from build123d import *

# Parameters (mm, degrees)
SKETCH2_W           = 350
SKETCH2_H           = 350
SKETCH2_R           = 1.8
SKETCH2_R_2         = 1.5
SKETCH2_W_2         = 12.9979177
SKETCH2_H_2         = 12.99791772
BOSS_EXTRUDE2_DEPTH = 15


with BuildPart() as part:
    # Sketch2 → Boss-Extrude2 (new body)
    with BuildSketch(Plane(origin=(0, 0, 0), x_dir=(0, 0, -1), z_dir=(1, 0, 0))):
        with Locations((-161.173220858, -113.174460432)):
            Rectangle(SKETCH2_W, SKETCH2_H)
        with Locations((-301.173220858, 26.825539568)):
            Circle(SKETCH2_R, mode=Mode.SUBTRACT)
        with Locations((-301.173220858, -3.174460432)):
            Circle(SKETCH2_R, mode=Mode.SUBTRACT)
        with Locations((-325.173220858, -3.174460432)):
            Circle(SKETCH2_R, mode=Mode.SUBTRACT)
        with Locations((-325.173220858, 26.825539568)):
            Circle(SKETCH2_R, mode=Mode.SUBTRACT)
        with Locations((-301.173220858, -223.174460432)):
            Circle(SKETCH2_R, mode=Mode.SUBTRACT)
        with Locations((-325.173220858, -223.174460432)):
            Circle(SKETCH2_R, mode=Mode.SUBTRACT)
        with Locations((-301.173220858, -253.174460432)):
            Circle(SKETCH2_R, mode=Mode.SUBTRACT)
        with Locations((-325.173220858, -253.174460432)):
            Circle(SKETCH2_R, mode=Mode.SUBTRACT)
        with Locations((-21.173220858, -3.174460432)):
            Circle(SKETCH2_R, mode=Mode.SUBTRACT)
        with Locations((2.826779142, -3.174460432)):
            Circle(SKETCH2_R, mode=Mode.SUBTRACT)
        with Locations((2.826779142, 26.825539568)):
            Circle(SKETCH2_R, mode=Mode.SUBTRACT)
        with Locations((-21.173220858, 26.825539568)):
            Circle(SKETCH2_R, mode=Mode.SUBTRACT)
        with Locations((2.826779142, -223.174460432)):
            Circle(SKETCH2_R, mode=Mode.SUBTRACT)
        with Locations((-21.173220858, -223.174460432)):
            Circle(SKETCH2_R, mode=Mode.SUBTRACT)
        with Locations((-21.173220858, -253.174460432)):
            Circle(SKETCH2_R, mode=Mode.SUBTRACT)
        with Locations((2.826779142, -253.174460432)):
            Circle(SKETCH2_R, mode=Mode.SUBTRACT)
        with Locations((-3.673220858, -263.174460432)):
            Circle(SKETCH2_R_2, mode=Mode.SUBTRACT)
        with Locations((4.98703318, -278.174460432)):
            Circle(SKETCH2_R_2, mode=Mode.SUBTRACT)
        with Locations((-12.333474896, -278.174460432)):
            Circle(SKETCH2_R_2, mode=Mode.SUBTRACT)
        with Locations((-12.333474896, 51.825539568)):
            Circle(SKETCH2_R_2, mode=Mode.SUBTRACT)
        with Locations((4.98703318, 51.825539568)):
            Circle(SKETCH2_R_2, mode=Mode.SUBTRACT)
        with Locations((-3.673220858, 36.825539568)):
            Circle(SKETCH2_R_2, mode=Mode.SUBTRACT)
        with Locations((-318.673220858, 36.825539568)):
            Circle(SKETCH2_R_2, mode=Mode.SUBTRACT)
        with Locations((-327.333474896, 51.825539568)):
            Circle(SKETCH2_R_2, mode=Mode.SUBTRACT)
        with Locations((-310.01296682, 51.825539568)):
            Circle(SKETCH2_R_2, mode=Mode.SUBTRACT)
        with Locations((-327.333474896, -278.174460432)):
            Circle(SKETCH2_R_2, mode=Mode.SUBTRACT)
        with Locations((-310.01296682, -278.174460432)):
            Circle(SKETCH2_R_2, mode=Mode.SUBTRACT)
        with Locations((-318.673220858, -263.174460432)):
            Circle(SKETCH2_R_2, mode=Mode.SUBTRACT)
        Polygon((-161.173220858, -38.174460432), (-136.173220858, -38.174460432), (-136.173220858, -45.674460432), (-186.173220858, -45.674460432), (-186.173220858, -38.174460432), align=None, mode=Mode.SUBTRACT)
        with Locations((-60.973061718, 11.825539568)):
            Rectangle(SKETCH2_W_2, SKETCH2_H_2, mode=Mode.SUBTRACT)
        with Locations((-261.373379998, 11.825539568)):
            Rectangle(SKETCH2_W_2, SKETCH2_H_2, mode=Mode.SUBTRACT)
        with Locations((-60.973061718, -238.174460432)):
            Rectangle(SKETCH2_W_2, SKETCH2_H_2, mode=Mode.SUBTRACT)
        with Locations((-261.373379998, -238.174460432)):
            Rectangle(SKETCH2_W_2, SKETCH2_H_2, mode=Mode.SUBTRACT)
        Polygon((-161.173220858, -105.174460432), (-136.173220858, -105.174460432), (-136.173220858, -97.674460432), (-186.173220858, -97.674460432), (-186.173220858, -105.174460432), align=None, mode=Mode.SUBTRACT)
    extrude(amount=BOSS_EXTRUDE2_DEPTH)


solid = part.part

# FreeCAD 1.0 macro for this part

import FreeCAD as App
import Part
import Sketcher
from FreeCAD import Vector


def add_polygon(sketch, points):
    """Adds a closed chain of lines whose ends are joined by coincident constraints."""
    first, n = sketch.GeometryCount, len(points)
    for a, b in zip(points, points[1:] + points[:1]):
        sketch.addGeometry(Part.LineSegment(App.Vector(*a, 0), App.Vector(*b, 0)), False)
    for i in range(n):
        sketch.addConstraint(Sketcher.Constraint("Coincident", first + i, 2, first + (i + 1) % n, 1))

doc = App.newDocument("Part")
body = doc.addObject("PartDesign::Body", "Body")

# Sketch on YZ plane
sketch1 = body.newObject("Sketcher::SketchObject", "Sketch")
sketch1.AttachmentSupport = (doc.getObject("YZ_Plane"), [""])
sketch1.MapMode = "FlatFace"
add_polygon(sketch1, [(61.82554, 336.173221), (-288.17446, 336.173221), (-288.17446, -13.826779), (61.82554, -13.826779)])  # lines 0-3
sketch1.addGeometry(Part.Circle(Vector(-278.17446, 327.333475, 0), Vector(0, 0, 1), 1.5), False)  # 4
sketch1.addGeometry(Part.Circle(Vector(-278.17446, 310.012967, 0), Vector(0, 0, 1), 1.5), False)  # 5
sketch1.addGeometry(Part.Circle(Vector(-263.17446, 318.673221, 0), Vector(0, 0, 1), 1.5), False)  # 6
sketch1.addGeometry(Part.Circle(Vector(-253.17446, 325.173221, 0), Vector(0, 0, 1), 1.8), False)  # 7
sketch1.addGeometry(Part.Circle(Vector(-253.17446, 301.173221, 0), Vector(0, 0, 1), 1.8), False)  # 8
add_polygon(sketch1, [(-244.673419, 254.874421), (-244.673419, 267.872339), (-231.675502, 267.872339), (-231.675502, 254.874421)])  # lines 9-12
sketch1.addGeometry(Part.Circle(Vector(-223.17446, 325.173221, 0), Vector(0, 0, 1), 1.8), False)  # 13
sketch1.addGeometry(Part.Circle(Vector(-223.17446, 301.173221, 0), Vector(0, 0, 1), 1.8), False)  # 14
add_polygon(sketch1, [(-244.673419, 54.474103), (-244.673419, 67.472021), (-231.675502, 67.472021), (-231.675502, 54.474103)])  # lines 15-18
sketch1.addGeometry(Part.Circle(Vector(-278.17446, 12.333475, 0), Vector(0, 0, 1), 1.5), False)  # 19
sketch1.addGeometry(Part.Circle(Vector(-278.17446, -4.987033, 0), Vector(0, 0, 1), 1.5), False)  # 20
sketch1.addGeometry(Part.Circle(Vector(-263.17446, 3.673221, 0), Vector(0, 0, 1), 1.5), False)  # 21
sketch1.addGeometry(Part.Circle(Vector(-253.17446, 21.173221, 0), Vector(0, 0, 1), 1.8), False)  # 22
sketch1.addGeometry(Part.Circle(Vector(-253.17446, -2.826779, 0), Vector(0, 0, 1), 1.8), False)  # 23
sketch1.addGeometry(Part.Circle(Vector(-223.17446, 21.173221, 0), Vector(0, 0, 1), 1.8), False)  # 24
sketch1.addGeometry(Part.Circle(Vector(-223.17446, -2.826779, 0), Vector(0, 0, 1), 1.8), False)  # 25
add_polygon(sketch1, [(-105.17446, 136.173221), (-105.17446, 186.173221), (-97.67446, 186.173221), (-97.67446, 136.173221)])  # lines 26-29
add_polygon(sketch1, [(-38.17446, 186.173221), (-38.17446, 136.173221), (-45.67446, 136.173221), (-45.67446, 186.173221)])  # lines 30-33
sketch1.addGeometry(Part.Circle(Vector(-3.17446, 325.173221, 0), Vector(0, 0, 1), 1.8), False)  # 34
sketch1.addGeometry(Part.Circle(Vector(-3.17446, 301.173221, 0), Vector(0, 0, 1), 1.8), False)  # 35
sketch1.addGeometry(Part.Circle(Vector(26.82554, 325.173221, 0), Vector(0, 0, 1), 1.8), False)  # 36
sketch1.addGeometry(Part.Circle(Vector(26.82554, 301.173221, 0), Vector(0, 0, 1), 1.8), False)  # 37
sketch1.addGeometry(Part.Circle(Vector(36.82554, 318.673221, 0), Vector(0, 0, 1), 1.5), False)  # 38
sketch1.addGeometry(Part.Circle(Vector(51.82554, 327.333475, 0), Vector(0, 0, 1), 1.5), False)  # 39
sketch1.addGeometry(Part.Circle(Vector(51.82554, 310.012967, 0), Vector(0, 0, 1), 1.5), False)  # 40
add_polygon(sketch1, [(5.326581, 254.874421), (5.326581, 267.872339), (18.324498, 267.872339), (18.324498, 254.874421)])  # lines 41-44
sketch1.addGeometry(Part.Circle(Vector(-3.17446, 21.173221, 0), Vector(0, 0, 1), 1.8), False)  # 45
sketch1.addGeometry(Part.Circle(Vector(-3.17446, -2.826779, 0), Vector(0, 0, 1), 1.8), False)  # 46
add_polygon(sketch1, [(5.326581, 54.474103), (5.326581, 67.472021), (18.324498, 67.472021), (18.324498, 54.474103)])  # lines 47-50
sketch1.addGeometry(Part.Circle(Vector(26.82554, 21.173221, 0), Vector(0, 0, 1), 1.8), False)  # 51
sketch1.addGeometry(Part.Circle(Vector(26.82554, -2.826779, 0), Vector(0, 0, 1), 1.8), False)  # 52
sketch1.addGeometry(Part.Circle(Vector(36.82554, 3.673221, 0), Vector(0, 0, 1), 1.5), False)  # 53
sketch1.addGeometry(Part.Circle(Vector(51.82554, 12.333475, 0), Vector(0, 0, 1), 1.5), False)  # 54
sketch1.addGeometry(Part.Circle(Vector(51.82554, -4.987033, 0), Vector(0, 0, 1), 1.5), False)  # 55
sketch1.addConstraint(Sketcher.Constraint("Horizontal", 0))
sketch1.addConstraint(Sketcher.Constraint("Vertical", 1))
sketch1.addConstraint(Sketcher.Constraint("Horizontal", 2))
sketch1.addConstraint(Sketcher.Constraint("Vertical", 3))
sketch1.addConstraint(Sketcher.Constraint("Vertical", 9))
sketch1.addConstraint(Sketcher.Constraint("Horizontal", 10))
sketch1.addConstraint(Sketcher.Constraint("Vertical", 11))
sketch1.addConstraint(Sketcher.Constraint("Horizontal", 12))
sketch1.addConstraint(Sketcher.Constraint("Vertical", 15))
sketch1.addConstraint(Sketcher.Constraint("Horizontal", 16))
sketch1.addConstraint(Sketcher.Constraint("Vertical", 17))
sketch1.addConstraint(Sketcher.Constraint("Horizontal", 18))
sketch1.addConstraint(Sketcher.Constraint("Vertical", 26))
sketch1.addConstraint(Sketcher.Constraint("Horizontal", 27))
sketch1.addConstraint(Sketcher.Constraint("Vertical", 28))
sketch1.addConstraint(Sketcher.Constraint("Horizontal", 29))
sketch1.addConstraint(Sketcher.Constraint("Vertical", 30))
sketch1.addConstraint(Sketcher.Constraint("Horizontal", 31))
sketch1.addConstraint(Sketcher.Constraint("Vertical", 32))
sketch1.addConstraint(Sketcher.Constraint("Horizontal", 33))
sketch1.addConstraint(Sketcher.Constraint("Vertical", 41))
sketch1.addConstraint(Sketcher.Constraint("Horizontal", 42))
sketch1.addConstraint(Sketcher.Constraint("Vertical", 43))
sketch1.addConstraint(Sketcher.Constraint("Horizontal", 44))
sketch1.addConstraint(Sketcher.Constraint("Vertical", 47))
sketch1.addConstraint(Sketcher.Constraint("Horizontal", 48))
sketch1.addConstraint(Sketcher.Constraint("Vertical", 49))
sketch1.addConstraint(Sketcher.Constraint("Horizontal", 50))
sketch1.addConstraint(Sketcher.Constraint("Equal", 4, 5))
sketch1.addConstraint(Sketcher.Constraint("Equal", 5, 6))
sketch1.addConstraint(Sketcher.Constraint("Equal", 7, 8))
sketch1.addConstraint(Sketcher.Constraint("Equal", 8, 13))
sketch1.addConstraint(Sketcher.Constraint("Equal", 13, 14))
sketch1.addConstraint(Sketcher.Constraint("Equal", 6, 19))
sketch1.addConstraint(Sketcher.Constraint("Equal", 19, 20))
sketch1.addConstraint(Sketcher.Constraint("Equal", 20, 21))
sketch1.addConstraint(Sketcher.Constraint("Equal", 14, 22))
sketch1.addConstraint(Sketcher.Constraint("Equal", 22, 23))
sketch1.addConstraint(Sketcher.Constraint("Equal", 23, 24))
sketch1.addConstraint(Sketcher.Constraint("Equal", 24, 25))
sketch1.addConstraint(Sketcher.Constraint("Equal", 25, 34))
sketch1.addConstraint(Sketcher.Constraint("Equal", 34, 35))
sketch1.addConstraint(Sketcher.Constraint("Equal", 35, 36))
sketch1.addConstraint(Sketcher.Constraint("Equal", 36, 37))
sketch1.addConstraint(Sketcher.Constraint("Equal", 21, 38))
sketch1.addConstraint(Sketcher.Constraint("Equal", 38, 39))
sketch1.addConstraint(Sketcher.Constraint("Equal", 39, 40))
sketch1.addConstraint(Sketcher.Constraint("Equal", 37, 45))
sketch1.addConstraint(Sketcher.Constraint("Equal", 45, 46))
sketch1.addConstraint(Sketcher.Constraint("Equal", 46, 51))
sketch1.addConstraint(Sketcher.Constraint("Equal", 51, 52))
sketch1.addConstraint(Sketcher.Constraint("Equal", 40, 53))
sketch1.addConstraint(Sketcher.Constraint("Equal", 53, 54))
sketch1.addConstraint(Sketcher.Constraint("Equal", 54, 55))
sketch1.addConstraint(Sketcher.Constraint("Horizontal", 7, 3, 13, 3))
sketch1.addConstraint(Sketcher.Constraint("Horizontal", 8, 3, 14, 3))
sketch1.addConstraint(Sketcher.Constraint("Horizontal", 22, 3, 24, 3))
sketch1.addConstraint(Sketcher.Constraint("Horizontal", 23, 3, 25, 3))
sketch1.addConstraint(Sketcher.Constraint("Horizontal", 13, 3, 34, 3))
sketch1.addConstraint(Sketcher.Constraint("Horizontal", 14, 3, 35, 3))
sketch1.addConstraint(Sketcher.Constraint("Horizontal", 34, 3, 36, 3))
sketch1.addConstraint(Sketcher.Constraint("Horizontal", 35, 3, 37, 3))
sketch1.addConstraint(Sketcher.Constraint("Horizontal", 6, 3, 38, 3))
sketch1.addConstraint(Sketcher.Constraint("Horizontal", 4, 3, 39, 3))
sketch1.addConstraint(Sketcher.Constraint("Horizontal", 5, 3, 40, 3))
sketch1.addConstraint(Sketcher.Constraint("Horizontal", 24, 3, 45, 3))
sketch1.addConstraint(Sketcher.Constraint("Horizontal", 25, 3, 46, 3))
sketch1.addConstraint(Sketcher.Constraint("Horizontal", 45, 3, 51, 3))
sketch1.addConstraint(Sketcher.Constraint("Horizontal", 46, 3, 52, 3))
sketch1.addConstraint(Sketcher.Constraint("Horizontal", 21, 3, 53, 3))
sketch1.addConstraint(Sketcher.Constraint("Horizontal", 19, 3, 54, 3))
sketch1.addConstraint(Sketcher.Constraint("Horizontal", 20, 3, 55, 3))
sketch1.addConstraint(Sketcher.Constraint("Horizontal", 29, 2, 30, 2))
sketch1.addConstraint(Sketcher.Constraint("Horizontal", 27, 2, 32, 2))
sketch1.addConstraint(Sketcher.Constraint("Horizontal", 10, 2, 41, 2))
sketch1.addConstraint(Sketcher.Constraint("Horizontal", 12, 2, 43, 2))
sketch1.addConstraint(Sketcher.Constraint("Horizontal", 16, 2, 47, 2))
sketch1.addConstraint(Sketcher.Constraint("Horizontal", 18, 2, 49, 2))
sketch1.addConstraint(Sketcher.Constraint("Vertical", 4, 3, 5, 3))
sketch1.addConstraint(Sketcher.Constraint("Vertical", 7, 3, 8, 3))
sketch1.addConstraint(Sketcher.Constraint("Vertical", 13, 3, 14, 3))
sketch1.addConstraint(Sketcher.Constraint("Vertical", 5, 3, 19, 3))
sketch1.addConstraint(Sketcher.Constraint("Vertical", 19, 3, 20, 3))
sketch1.addConstraint(Sketcher.Constraint("Vertical", 6, 3, 21, 3))
sketch1.addConstraint(Sketcher.Constraint("Vertical", 8, 3, 22, 3))
sketch1.addConstraint(Sketcher.Constraint("Vertical", 22, 3, 23, 3))
sketch1.addConstraint(Sketcher.Constraint("Vertical", 14, 3, 24, 3))
sketch1.addConstraint(Sketcher.Constraint("Vertical", 24, 3, 25, 3))
sketch1.addConstraint(Sketcher.Constraint("Vertical", 34, 3, 35, 3))
sketch1.addConstraint(Sketcher.Constraint("Vertical", 36, 3, 37, 3))
sketch1.addConstraint(Sketcher.Constraint("Vertical", 39, 3, 40, 3))
sketch1.addConstraint(Sketcher.Constraint("Vertical", 35, 3, 45, 3))
sketch1.addConstraint(Sketcher.Constraint("Vertical", 45, 3, 46, 3))
sketch1.addConstraint(Sketcher.Constraint("Vertical", 37, 3, 51, 3))
sketch1.addConstraint(Sketcher.Constraint("Vertical", 51, 3, 52, 3))
sketch1.addConstraint(Sketcher.Constraint("Vertical", 38, 3, 53, 3))
sketch1.addConstraint(Sketcher.Constraint("Vertical", 40, 3, 54, 3))
sketch1.addConstraint(Sketcher.Constraint("Vertical", 54, 3, 55, 3))
sketch1.addConstraint(Sketcher.Constraint("Vertical", 12, 2, 15, 2))
sketch1.addConstraint(Sketcher.Constraint("Vertical", 11, 2, 16, 2))
sketch1.addConstraint(Sketcher.Constraint("Vertical", 44, 2, 47, 2))
sketch1.addConstraint(Sketcher.Constraint("Vertical", 43, 2, 48, 2))
sketch1.addConstraint(Sketcher.Constraint("Equal", 29, 31))
sketch1.addConstraint(Sketcher.Constraint("Equal", 18, 42))
sketch1.addConstraint(Sketcher.Constraint("Equal", 2, 1))
sketch1.addConstraint(Sketcher.Constraint("Equal", 50, 9))
sketch1.addConstraint(Sketcher.Constraint("Equal", 11, 15))
sketch1.addConstraint(Sketcher.Constraint("Diameter", 4, 3.0))
sketch1.addConstraint(Sketcher.Constraint("Diameter", 7, 3.6))
sketch1.addConstraint(Sketcher.Constraint("DistanceX", 0, 2, 0, 1, 350.0))
sketch1.addConstraint(Sketcher.Constraint("DistanceY", 26, 1, 26, 2, 50.0))
sketch1.addConstraint(Sketcher.Constraint("DistanceX", 27, 1, 27, 2, 7.5))
sketch1.addConstraint(Sketcher.Constraint("DistanceX", 4, 3, 6, 3, 15.0))
sketch1.addConstraint(Sketcher.Constraint("DistanceX", 6, 3, 7, 3, 10.0))
sketch1.addConstraint(Sketcher.Constraint("DistanceY", 8, 3, 7, 3, 24.0))
sketch1.addConstraint(Sketcher.Constraint("DistanceX", 7, 3, 13, 3, 30.0))
sketch1.addConstraint(Sketcher.Constraint("DistanceY", 20, 3, 5, 3, 315.0))
sketch1.addConstraint(Sketcher.Constraint("DistanceY", 22, 3, 8, 3, 280.0))
sketch1.addConstraint(Sketcher.Constraint("DistanceY", 23, 3, 22, 3, 24.0))
sketch1.addConstraint(Sketcher.Constraint("DistanceX", 13, 3, 34, 3, 220.0))
sketch1.addConstraint(Sketcher.Constraint("DistanceX", 34, 3, 36, 3, 30.0))
sketch1.addConstraint(Sketcher.Constraint("DistanceX", 36, 3, 38, 3, 10.0))
sketch1.addConstraint(Sketcher.Constraint("DistanceX", 38, 3, 39, 3, 15.0))
sketch1.addConstraint(Sketcher.Constraint("DistanceX", 0, 2, 4, 3, 10.0))
sketch1.addConstraint(Sketcher.Constraint("DistanceY", 7, 3, 0, 2, 11.0))
sketch1.addConstraint(Sketcher.Constraint("DistanceX", 26, 2, 35, 3, 102.0))
sketch1.addConstraint(Sketcher.Constraint("DistanceY", 26, 2, 35, 3, 115.0))
sketch1.addConstraint(Sketcher.Constraint("DistanceX", 29, 2, 30, 2, 67.0))
sketch1.addConstraint(Sketcher.Constraint("DistanceY", 6, 3, 7, 3, 6.5))
sketch1.addConstraint(Sketcher.Constraint("DistanceY", 21, 3, 8, 3, 297.5))
sketch1.addConstraint(Sketcher.Constraint("DistanceX", 10, 2, -1, 1, 231.675502))
sketch1.addConstraint(Sketcher.Constraint("DistanceX", -1, 1, 42, 2, 18.324498))
sketch1.addConstraint(Sketcher.Constraint("DistanceY", 11, 2, 14, 3, 46.2988))
sketch1.addConstraint(Sketcher.Constraint("DistanceY", 22, 3, 15, 2, 46.2988))
sketch1.addConstraint(Sketcher.Constraint("DistanceX", 10, 1, 10, 2, 12.997918))
sketch1.addConstraint(Sketcher.Constraint("DistanceX", 4, 3, -1, 1, 278.17446))
sketch1.addConstraint(Sketcher.Constraint("DistanceY", -1, 1, 6, 3, 318.673221))
sketch1.addConstraint(Sketcher.Constraint("DistanceY", 5, 3, 4, 3, 17.320508))
sketch1.addConstraint(Sketcher.Constraint("DistanceY", 19, 3, 5, 3, 297.679492))
sketch1.addConstraint(Sketcher.Constraint("DistanceY", -1, 1, 4, 3, 327.333475))
pad1 = body.newObject("PartDesign::Pad", "Pad")
pad1.Profile = sketch1
pad1.Length = 15

doc.recompute()
